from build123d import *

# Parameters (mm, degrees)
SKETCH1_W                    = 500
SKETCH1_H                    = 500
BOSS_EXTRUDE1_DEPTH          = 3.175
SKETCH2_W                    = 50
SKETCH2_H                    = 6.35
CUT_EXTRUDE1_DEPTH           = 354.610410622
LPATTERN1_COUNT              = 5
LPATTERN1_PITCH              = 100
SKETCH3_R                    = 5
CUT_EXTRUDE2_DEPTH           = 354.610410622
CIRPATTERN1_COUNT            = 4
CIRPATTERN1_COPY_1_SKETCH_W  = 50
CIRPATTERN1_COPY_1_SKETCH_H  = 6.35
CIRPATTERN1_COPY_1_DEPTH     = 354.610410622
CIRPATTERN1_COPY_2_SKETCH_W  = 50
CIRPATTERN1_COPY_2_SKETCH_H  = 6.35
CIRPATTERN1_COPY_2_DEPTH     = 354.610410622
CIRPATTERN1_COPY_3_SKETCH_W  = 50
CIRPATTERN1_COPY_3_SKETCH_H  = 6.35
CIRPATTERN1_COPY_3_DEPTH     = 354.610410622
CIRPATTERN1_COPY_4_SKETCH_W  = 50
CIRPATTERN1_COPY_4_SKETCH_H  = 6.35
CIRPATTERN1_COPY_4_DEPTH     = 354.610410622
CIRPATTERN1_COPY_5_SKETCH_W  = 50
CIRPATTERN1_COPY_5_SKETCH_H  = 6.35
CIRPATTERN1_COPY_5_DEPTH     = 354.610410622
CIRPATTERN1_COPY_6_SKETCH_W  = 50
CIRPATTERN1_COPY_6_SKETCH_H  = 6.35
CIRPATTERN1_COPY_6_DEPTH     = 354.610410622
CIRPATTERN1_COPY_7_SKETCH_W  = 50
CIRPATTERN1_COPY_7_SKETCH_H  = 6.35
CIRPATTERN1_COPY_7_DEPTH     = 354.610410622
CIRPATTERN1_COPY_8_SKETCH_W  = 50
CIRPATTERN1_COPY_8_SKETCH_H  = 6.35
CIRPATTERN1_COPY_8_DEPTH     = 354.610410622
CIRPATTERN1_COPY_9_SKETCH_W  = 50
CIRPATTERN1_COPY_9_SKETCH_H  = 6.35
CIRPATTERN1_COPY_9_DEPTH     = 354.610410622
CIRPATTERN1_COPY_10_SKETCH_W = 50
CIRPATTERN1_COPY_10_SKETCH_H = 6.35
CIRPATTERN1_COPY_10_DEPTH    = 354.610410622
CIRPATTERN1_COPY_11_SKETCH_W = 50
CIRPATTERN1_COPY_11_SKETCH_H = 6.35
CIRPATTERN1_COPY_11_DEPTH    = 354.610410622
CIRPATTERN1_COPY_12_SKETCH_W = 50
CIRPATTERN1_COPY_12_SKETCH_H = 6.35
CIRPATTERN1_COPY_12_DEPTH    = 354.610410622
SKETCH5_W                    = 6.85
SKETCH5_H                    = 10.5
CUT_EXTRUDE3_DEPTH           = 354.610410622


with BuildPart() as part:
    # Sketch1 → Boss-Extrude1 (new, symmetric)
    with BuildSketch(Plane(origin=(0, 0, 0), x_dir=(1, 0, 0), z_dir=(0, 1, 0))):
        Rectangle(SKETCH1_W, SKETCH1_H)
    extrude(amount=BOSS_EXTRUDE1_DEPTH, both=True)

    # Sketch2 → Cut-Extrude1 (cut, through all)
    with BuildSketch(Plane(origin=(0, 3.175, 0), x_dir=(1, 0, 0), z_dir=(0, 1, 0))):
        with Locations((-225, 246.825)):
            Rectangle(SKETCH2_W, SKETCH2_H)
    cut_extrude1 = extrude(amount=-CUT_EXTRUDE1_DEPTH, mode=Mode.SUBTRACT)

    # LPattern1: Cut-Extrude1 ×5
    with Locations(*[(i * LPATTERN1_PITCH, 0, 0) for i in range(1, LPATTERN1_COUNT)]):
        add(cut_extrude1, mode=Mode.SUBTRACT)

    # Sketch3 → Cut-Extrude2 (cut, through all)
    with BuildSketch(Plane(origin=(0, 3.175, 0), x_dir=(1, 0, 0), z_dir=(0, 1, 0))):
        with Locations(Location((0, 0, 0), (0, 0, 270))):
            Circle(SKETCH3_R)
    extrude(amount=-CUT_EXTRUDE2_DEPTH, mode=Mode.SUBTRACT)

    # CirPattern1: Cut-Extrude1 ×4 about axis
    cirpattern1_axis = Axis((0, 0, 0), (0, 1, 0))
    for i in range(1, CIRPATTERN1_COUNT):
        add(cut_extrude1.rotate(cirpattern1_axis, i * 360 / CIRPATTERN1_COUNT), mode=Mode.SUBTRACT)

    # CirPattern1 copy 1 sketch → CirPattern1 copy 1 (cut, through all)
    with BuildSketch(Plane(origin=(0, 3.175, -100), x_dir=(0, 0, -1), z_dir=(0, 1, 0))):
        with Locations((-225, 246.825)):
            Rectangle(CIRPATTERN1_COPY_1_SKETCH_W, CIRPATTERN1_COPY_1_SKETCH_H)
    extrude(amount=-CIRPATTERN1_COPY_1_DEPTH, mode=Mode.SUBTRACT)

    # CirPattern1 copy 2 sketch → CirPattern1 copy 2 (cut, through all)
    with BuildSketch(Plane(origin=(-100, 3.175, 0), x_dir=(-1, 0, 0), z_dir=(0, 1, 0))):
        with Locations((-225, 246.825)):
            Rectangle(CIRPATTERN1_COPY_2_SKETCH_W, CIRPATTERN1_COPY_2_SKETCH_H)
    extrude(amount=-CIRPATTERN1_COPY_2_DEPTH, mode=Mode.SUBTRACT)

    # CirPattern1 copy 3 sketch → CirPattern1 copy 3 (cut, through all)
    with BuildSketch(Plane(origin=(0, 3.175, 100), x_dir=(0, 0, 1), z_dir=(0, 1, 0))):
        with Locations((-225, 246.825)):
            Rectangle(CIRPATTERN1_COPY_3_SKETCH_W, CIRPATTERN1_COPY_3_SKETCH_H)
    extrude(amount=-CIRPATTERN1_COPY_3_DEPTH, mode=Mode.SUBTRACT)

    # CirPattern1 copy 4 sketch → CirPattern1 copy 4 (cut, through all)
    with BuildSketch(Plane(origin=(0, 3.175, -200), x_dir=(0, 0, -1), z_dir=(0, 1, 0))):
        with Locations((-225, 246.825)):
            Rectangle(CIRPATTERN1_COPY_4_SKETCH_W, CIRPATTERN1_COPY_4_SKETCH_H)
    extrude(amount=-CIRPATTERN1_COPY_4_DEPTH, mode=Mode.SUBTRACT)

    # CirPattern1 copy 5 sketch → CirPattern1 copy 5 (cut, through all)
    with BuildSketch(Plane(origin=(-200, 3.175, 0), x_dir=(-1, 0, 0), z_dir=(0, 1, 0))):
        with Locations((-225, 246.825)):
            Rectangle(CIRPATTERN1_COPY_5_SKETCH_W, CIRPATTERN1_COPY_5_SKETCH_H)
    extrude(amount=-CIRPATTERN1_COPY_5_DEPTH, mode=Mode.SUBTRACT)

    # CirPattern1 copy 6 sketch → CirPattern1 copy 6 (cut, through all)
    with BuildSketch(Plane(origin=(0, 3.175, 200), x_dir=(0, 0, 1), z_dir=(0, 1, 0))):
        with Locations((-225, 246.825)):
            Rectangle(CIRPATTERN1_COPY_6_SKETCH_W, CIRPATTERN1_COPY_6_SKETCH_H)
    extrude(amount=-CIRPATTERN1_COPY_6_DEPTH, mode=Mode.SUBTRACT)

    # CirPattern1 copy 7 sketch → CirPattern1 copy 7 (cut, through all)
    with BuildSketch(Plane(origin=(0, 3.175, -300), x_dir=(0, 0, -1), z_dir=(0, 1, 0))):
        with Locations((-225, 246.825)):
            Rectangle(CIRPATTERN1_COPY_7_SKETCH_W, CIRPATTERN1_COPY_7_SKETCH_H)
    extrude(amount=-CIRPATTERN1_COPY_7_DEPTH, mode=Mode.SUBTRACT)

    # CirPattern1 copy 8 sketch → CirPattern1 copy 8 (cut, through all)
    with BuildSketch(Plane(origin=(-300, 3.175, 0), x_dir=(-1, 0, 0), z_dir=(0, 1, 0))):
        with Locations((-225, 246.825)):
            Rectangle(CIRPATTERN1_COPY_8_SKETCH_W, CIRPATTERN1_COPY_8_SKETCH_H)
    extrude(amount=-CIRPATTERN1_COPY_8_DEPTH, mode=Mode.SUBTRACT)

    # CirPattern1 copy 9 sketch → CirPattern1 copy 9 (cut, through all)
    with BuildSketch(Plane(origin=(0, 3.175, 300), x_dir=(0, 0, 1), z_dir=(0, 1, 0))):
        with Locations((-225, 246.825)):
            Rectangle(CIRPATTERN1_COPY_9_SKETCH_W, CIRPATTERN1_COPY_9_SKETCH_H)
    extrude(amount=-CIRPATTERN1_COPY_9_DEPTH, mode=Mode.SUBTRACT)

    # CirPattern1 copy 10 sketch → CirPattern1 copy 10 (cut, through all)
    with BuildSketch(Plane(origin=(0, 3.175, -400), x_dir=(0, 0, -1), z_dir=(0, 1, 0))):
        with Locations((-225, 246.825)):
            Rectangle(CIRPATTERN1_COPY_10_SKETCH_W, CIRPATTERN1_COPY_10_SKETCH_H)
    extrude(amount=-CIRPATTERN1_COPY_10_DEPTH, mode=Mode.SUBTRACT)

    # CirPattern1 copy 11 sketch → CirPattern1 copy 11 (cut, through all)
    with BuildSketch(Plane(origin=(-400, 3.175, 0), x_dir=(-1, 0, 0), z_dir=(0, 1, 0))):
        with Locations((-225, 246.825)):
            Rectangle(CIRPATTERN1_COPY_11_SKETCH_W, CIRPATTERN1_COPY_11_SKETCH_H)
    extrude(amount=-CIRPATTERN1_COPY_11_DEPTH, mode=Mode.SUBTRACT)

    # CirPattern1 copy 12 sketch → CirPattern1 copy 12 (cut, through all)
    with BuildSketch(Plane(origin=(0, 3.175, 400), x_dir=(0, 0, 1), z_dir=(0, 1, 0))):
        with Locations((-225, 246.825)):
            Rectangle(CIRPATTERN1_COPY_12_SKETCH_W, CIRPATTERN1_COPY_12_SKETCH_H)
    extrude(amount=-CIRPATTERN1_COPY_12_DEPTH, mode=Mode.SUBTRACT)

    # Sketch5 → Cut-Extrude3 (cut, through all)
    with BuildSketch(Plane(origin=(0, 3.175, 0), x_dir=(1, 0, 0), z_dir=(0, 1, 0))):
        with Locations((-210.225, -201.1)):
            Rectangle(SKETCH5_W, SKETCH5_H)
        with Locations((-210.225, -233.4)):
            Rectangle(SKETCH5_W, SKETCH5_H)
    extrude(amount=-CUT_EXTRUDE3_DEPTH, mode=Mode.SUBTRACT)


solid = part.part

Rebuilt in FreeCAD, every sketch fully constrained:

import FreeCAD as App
import Part
import Sketcher
from FreeCAD import Vector
Q = App.Units.Quantity


def add_polygon(sketch, points):
    """Adds a closed chain of lines whose ends are joined by coincident constraints."""
    first, n = sketch.GeometryCount, len(points)
    for a, b in zip(points, points[1:] + points[:1]):
        sketch.addGeometry(Part.LineSegment(App.Vector(*a, 0), App.Vector(*b, 0)), False)
    for i in range(n):
        sketch.addConstraint(Sketcher.Constraint("Coincident", first + i, 2, first + (i + 1) % n, 1))

doc = App.newDocument("Part")
body = doc.addObject("PartDesign::Body", "Body")

# Sketch on XZ plane
sketch1 = body.newObject("Sketcher::SketchObject", "Sketch")
sketch1.AttachmentSupport = (doc.getObject("XZ_Plane"), [""])
sketch1.MapMode = "FlatFace"
add_polygon(sketch1, [(-250, -250), (-250, 250), (250, 250), (250, -250)])  # lines 0-3
sketch1.addConstraint([
    Sketcher.Constraint("Vertical", 0),
    Sketcher.Constraint("Horizontal", 1),
    Sketcher.Constraint("Vertical", 2),
    Sketcher.Constraint("Horizontal", 3),
    Sketcher.Constraint("Symmetric", 0, 2, 2, 2, -1, 1),
    Sketcher.Constraint("Equal", 3, 0),
    Sketcher.Constraint("DistanceX", 1, 1, 1, 2, Q("500 mm")),
])
pad1 = body.newObject("PartDesign::Pad", "Pad")
pad1.Profile = sketch1
pad1.Length = 6.35
pad1.Midplane = True

# Sketch on XZ plane
sketch2 = body.newObject("Sketcher::SketchObject", "Sketch001")
sketch2.AttachmentSupport = (doc.getObject("XZ_Plane"), [""])
sketch2.MapMode = "FlatFace"
sketch2.AttachmentOffset = App.Placement(Vector(0, 0, -3.175), App.Rotation())
add_polygon(sketch2, [(-250, -250), (-250, -244), (-200, -244), (-200, -250)])  # lines 0-3
sketch2.addConstraint([
    Sketcher.Constraint("Vertical", 0),
    Sketcher.Constraint("Horizontal", 1),
    Sketcher.Constraint("Vertical", 2),
    Sketcher.Constraint("Horizontal", 3),
    Sketcher.Constraint("DistanceX", 1, 1, 1, 2, Q("50 mm")),
    Sketcher.Constraint("DistanceX", 0, 2, -1, 1, Q("250 mm")),
    Sketcher.Constraint("DistanceY", 2, 2, -1, 1, Q("250 mm")),
    Sketcher.Constraint("DistanceY", 0, 1, 0, 2, Q("6.35 mm")),
])
pocket1 = body.newObject("PartDesign::Pocket", "Pocket")
pocket1.Profile = sketch2
pocket1.Type = "ThroughAll"
pocket1.Reversed = True
doc.recompute()

linearpattern = body.newObject("PartDesign::LinearPattern", "LinearPattern")
linearpattern.Originals = [pocket1]
linearpattern.Direction = (doc.getObject("X_Axis"), [""])
linearpattern.Mode = "offset"
linearpattern.Offset = 100
linearpattern.Occurrences = 5
body.Tip = linearpattern

# Sketch on XZ plane
sketch3 = body.newObject("Sketcher::SketchObject", "Sketch002")
sketch3.AttachmentSupport = (doc.getObject("XZ_Plane"), [""])
sketch3.MapMode = "FlatFace"
sketch3.AttachmentOffset = App.Placement(Vector(0, 0, -3.175), App.Rotation())
sketch3.addGeometry(Part.Circle(Vector(0, 0, 0), Vector(0, 0, 1), 5), False)
sketch3.addConstraint([
    Sketcher.Constraint("Coincident", 0, 3, -1, 1),
    Sketcher.Constraint("Diameter", 0, Q("10 mm")),
])
pocket2 = body.newObject("PartDesign::Pocket", "Pocket001")
pocket2.Profile = sketch3
pocket2.Type = "ThroughAll"
pocket2.Reversed = True
doc.recompute()

polarpattern = body.newObject("PartDesign::PolarPattern", "PolarPattern")
polarpattern.Originals = [pocket1]
polarpattern.Axis = (doc.getObject("Y_Axis"), [""])
polarpattern.Angle = 360
polarpattern.Occurrences = 4
body.Tip = polarpattern

# Sketch on XZ plane
sketch4 = body.newObject("Sketcher::SketchObject", "Sketch003")
sketch4.AttachmentSupport = (doc.getObject("XZ_Plane"), [""])
sketch4.MapMode = "FlatFace"
sketch4.AttachmentOffset = App.Placement(Vector(0, 0, -3.175), App.Rotation())
add_polygon(sketch4, [(-250, 150), (-244, 150), (-244, 100), (-250, 100)])  # lines 0-3
sketch4.addConstraint([
    Sketcher.Constraint("Horizontal", 0),
    Sketcher.Constraint("Vertical", 1),
    Sketcher.Constraint("Horizontal", 2),
    Sketcher.Constraint("Vertical", 3),
    Sketcher.Constraint("DistanceY", 1, 2, 1, 1, Q("50 mm")),
    Sketcher.Constraint("DistanceY", -1, 1, 0, 2, Q("150 mm")),
    Sketcher.Constraint("DistanceX", 2, 2, -1, 1, Q("250 mm")),
    Sketcher.Constraint("DistanceX", 0, 1, 0, 2, Q("6.35 mm")),
])
pocket3 = body.newObject("PartDesign::Pocket", "Pocket002")
pocket3.Profile = sketch4
pocket3.Type = "ThroughAll"
pocket3.Reversed = True

# Sketch on XZ plane
sketch5 = body.newObject("Sketcher::SketchObject", "Sketch004")
sketch5.AttachmentSupport = (doc.getObject("XZ_Plane"), [""])
sketch5.MapMode = "FlatFace"
sketch5.AttachmentOffset = App.Placement(Vector(0, 0, -3.175), App.Rotation())
add_polygon(sketch5, [(150, 250), (150, 244), (100, 244), (100, 250)])  # lines 0-3
sketch5.addConstraint([
    Sketcher.Constraint("Vertical", 0),
    Sketcher.Constraint("Horizontal", 1),
    Sketcher.Constraint("Vertical", 2),
    Sketcher.Constraint("Horizontal", 3),
    Sketcher.Constraint("DistanceX", 1, 2, 1, 1, Q("50 mm")),
    Sketcher.Constraint("DistanceX", -1, 1, 0, 2, Q("150 mm")),
    Sketcher.Constraint("DistanceY", -1, 1, 2, 2, Q("250 mm")),
    Sketcher.Constraint("DistanceY", 0, 2, 0, 1, Q("6.35 mm")),
])
pocket4 = body.newObject("PartDesign::Pocket", "Pocket003")
pocket4.Profile = sketch5
pocket4.Type = "ThroughAll"
pocket4.Reversed = True

# Sketch on XZ plane
sketch6 = body.newObject("Sketcher::SketchObject", "Sketch005")
sketch6.AttachmentSupport = (doc.getObject("XZ_Plane"), [""])
sketch6.MapMode = "FlatFace"
sketch6.AttachmentOffset = App.Placement(Vector(0, 0, -3.175), App.Rotation())
add_polygon(sketch6, [(250, -150), (244, -150), (244, -100), (250, -100)])  # lines 0-3
sketch6.addConstraint([
    Sketcher.Constraint("Horizontal", 0),
    Sketcher.Constraint("Vertical", 1),
    Sketcher.Constraint("Horizontal", 2),
    Sketcher.Constraint("Vertical", 3),
    Sketcher.Constraint("DistanceY", 1, 1, 1, 2, Q("50 mm")),
    Sketcher.Constraint("DistanceY", 0, 2, -1, 1, Q("150 mm")),
    Sketcher.Constraint("DistanceX", -1, 1, 2, 2, Q("250 mm")),
    Sketcher.Constraint("DistanceX", 0, 2, 0, 1, Q("6.35 mm")),
])
pocket5 = body.newObject("PartDesign::Pocket", "Pocket004")
pocket5.Profile = sketch6
pocket5.Type = "ThroughAll"
pocket5.Reversed = True

# Sketch on XZ plane
sketch7 = body.newObject("Sketcher::SketchObject", "Sketch006")
sketch7.AttachmentSupport = (doc.getObject("XZ_Plane"), [""])
sketch7.MapMode = "FlatFace"
sketch7.AttachmentOffset = App.Placement(Vector(0, 0, -3.175), App.Rotation())
add_polygon(sketch7, [(-250, 50), (-244, 50), (-244, 0), (-250, 0)])  # lines 0-3
sketch7.addConstraint([
    Sketcher.Constraint("Horizontal", 0),
    Sketcher.Constraint("Vertical", 1),
    Sketcher.Constraint("Horizontal", 2),
    Sketcher.Constraint("Vertical", 3),
    Sketcher.Constraint("PointOnObject", 1, 2, -1),
    Sketcher.Constraint("DistanceY", 1, 2, 1, 1, Q("50 mm")),
    Sketcher.Constraint("DistanceX", 2, 2, -1, 1, Q("250 mm")),
    Sketcher.Constraint("DistanceX", 0, 1, 0, 2, Q("6.35 mm")),
])
pocket6 = body.newObject("PartDesign::Pocket", "Pocket005")
pocket6.Profile = sketch7
pocket6.Type = "ThroughAll"
pocket6.Reversed = True

# Sketch on XZ plane
sketch8 = body.newObject("Sketcher::SketchObject", "Sketch007")
sketch8.AttachmentSupport = (doc.getObject("XZ_Plane"), [""])
sketch8.MapMode = "FlatFace"
sketch8.AttachmentOffset = App.Placement(Vector(0, 0, -3.175), App.Rotation())
add_polygon(sketch8, [(50, 250), (50, 244), (0, 244), (0, 250)])  # lines 0-3
sketch8.addConstraint([
    Sketcher.Constraint("Vertical", 0),
    Sketcher.Constraint("Horizontal", 1),
    Sketcher.Constraint("Vertical", 2),
    Sketcher.Constraint("Horizontal", 3),
    Sketcher.Constraint("PointOnObject", 1, 2, -2),
    Sketcher.Constraint("DistanceX", 1, 2, 1, 1, Q("50 mm")),
    Sketcher.Constraint("DistanceY", -1, 1, 2, 2, Q("250 mm")),
    Sketcher.Constraint("DistanceY", 0, 2, 0, 1, Q("6.35 mm")),
])
pocket7 = body.newObject("PartDesign::Pocket", "Pocket006")
pocket7.Profile = sketch8
pocket7.Type = "ThroughAll"
pocket7.Reversed = True

# Sketch on XZ plane
sketch9 = body.newObject("Sketcher::SketchObject", "Sketch008")
sketch9.AttachmentSupport = (doc.getObject("XZ_Plane"), [""])
sketch9.MapMode = "FlatFace"
sketch9.AttachmentOffset = App.Placement(Vector(0, 0, -3.175), App.Rotation())
add_polygon(sketch9, [(250, -50), (244, -50), (244, 0), (250, 0)])  # lines 0-3
sketch9.addConstraint([
    Sketcher.Constraint("Horizontal", 0),
    Sketcher.Constraint("Vertical", 1),
    Sketcher.Constraint("Horizontal", 2),
    Sketcher.Constraint("Vertical", 3),
    Sketcher.Constraint("PointOnObject", 1, 2, -1),
    Sketcher.Constraint("DistanceY", 1, 1, 1, 2, Q("50 mm")),
    Sketcher.Constraint("DistanceX", -1, 1, 2, 2, Q("250 mm")),
    Sketcher.Constraint("DistanceX", 0, 2, 0, 1, Q("6.35 mm")),
])
pocket8 = body.newObject("PartDesign::Pocket", "Pocket007")
pocket8.Profile = sketch9
pocket8.Type = "ThroughAll"
pocket8.Reversed = True

# Sketch on XZ plane
sketch10 = body.newObject("Sketcher::SketchObject", "Sketch009")
sketch10.AttachmentSupport = (doc.getObject("XZ_Plane"), [""])
sketch10.MapMode = "FlatFace"
sketch10.AttachmentOffset = App.Placement(Vector(0, 0, -3.175), App.Rotation())
add_polygon(sketch10, [(-250, -50), (-244, -50), (-244, -100), (-250, -100)])  # lines 0-3
sketch10.addConstraint([
    Sketcher.Constraint("Horizontal", 0),
    Sketcher.Constraint("Vertical", 1),
    Sketcher.Constraint("Horizontal", 2),
    Sketcher.Constraint("Vertical", 3),
    Sketcher.Constraint("DistanceY", 1, 2, 1, 1, Q("50 mm")),
    Sketcher.Constraint("DistanceY", 0, 2, -1, 1, Q("50 mm")),
    Sketcher.Constraint("DistanceX", 2, 2, -1, 1, Q("250 mm")),
    Sketcher.Constraint("DistanceX", 0, 1, 0, 2, Q("6.35 mm")),
])
pocket9 = body.newObject("PartDesign::Pocket", "Pocket008")
pocket9.Profile = sketch10
pocket9.Type = "ThroughAll"
pocket9.Reversed = True

# Sketch on XZ plane
sketch11 = body.newObject("Sketcher::SketchObject", "Sketch010")
sketch11.AttachmentSupport = (doc.getObject("XZ_Plane"), [""])
sketch11.MapMode = "FlatFace"
sketch11.AttachmentOffset = App.Placement(Vector(0, 0, -3.175), App.Rotation())
add_polygon(sketch11, [(-50, 250), (-50, 244), (-100, 244), (-100, 250)])  # lines 0-3
sketch11.addConstraint([
    Sketcher.Constraint("Vertical", 0),
    Sketcher.Constraint("Horizontal", 1),
    Sketcher.Constraint("Vertical", 2),
    Sketcher.Constraint("Horizontal", 3),
    Sketcher.Constraint("DistanceX", 1, 2, 1, 1, Q("50 mm")),
    Sketcher.Constraint("DistanceX", 0, 2, -1, 1, Q("50 mm")),
    Sketcher.Constraint("DistanceY", -1, 1, 2, 2, Q("250 mm")),
    Sketcher.Constraint("DistanceY", 0, 2, 0, 1, Q("6.35 mm")),
])
pocket10 = body.newObject("PartDesign::Pocket", "Pocket009")
pocket10.Profile = sketch11
pocket10.Type = "ThroughAll"
pocket10.Reversed = True

# Sketch on XZ plane
sketch12 = body.newObject("Sketcher::SketchObject", "Sketch011")
sketch12.AttachmentSupport = (doc.getObject("XZ_Plane"), [""])
sketch12.MapMode = "FlatFace"
sketch12.AttachmentOffset = App.Placement(Vector(0, 0, -3.175), App.Rotation())
add_polygon(sketch12, [(250, 50), (244, 50), (244, 100), (250, 100)])  # lines 0-3
sketch12.addConstraint([
    Sketcher.Constraint("Horizontal", 0),
    Sketcher.Constraint("Vertical", 1),
    Sketcher.Constraint("Horizontal", 2),
    Sketcher.Constraint("Vertical", 3),
    Sketcher.Constraint("DistanceY", 1, 1, 1, 2, Q("50 mm")),
    Sketcher.Constraint("DistanceY", -1, 1, 0, 2, Q("50 mm")),
    Sketcher.Constraint("DistanceX", -1, 1, 2, 2, Q("250 mm")),
    Sketcher.Constraint("DistanceX", 0, 2, 0, 1, Q("6.35 mm")),
])
pocket11 = body.newObject("PartDesign::Pocket", "Pocket010")
pocket11.Profile = sketch12
pocket11.Type = "ThroughAll"
pocket11.Reversed = True

# Sketch on XZ plane
sketch13 = body.newObject("Sketcher::SketchObject", "Sketch012")
sketch13.AttachmentSupport = (doc.getObject("XZ_Plane"), [""])
sketch13.MapMode = "FlatFace"
sketch13.AttachmentOffset = App.Placement(Vector(0, 0, -3.175), App.Rotation())
add_polygon(sketch13, [(-250, -150), (-244, -150), (-244, -200), (-250, -200)])  # lines 0-3
sketch13.addConstraint([
    Sketcher.Constraint("Horizontal", 0),
    Sketcher.Constraint("Vertical", 1),
    Sketcher.Constraint("Horizontal", 2),
    Sketcher.Constraint("Vertical", 3),
    Sketcher.Constraint("DistanceY", 1, 2, 1, 1, Q("50 mm")),
    Sketcher.Constraint("DistanceY", 0, 2, -1, 1, Q("150 mm")),
    Sketcher.Constraint("DistanceX", 2, 2, -1, 1, Q("250 mm")),
    Sketcher.Constraint("DistanceX", 0, 1, 0, 2, Q("6.35 mm")),
])
pocket12 = body.newObject("PartDesign::Pocket", "Pocket011")
pocket12.Profile = sketch13
pocket12.Type = "ThroughAll"
pocket12.Reversed = True

# Sketch on XZ plane
sketch14 = body.newObject("Sketcher::SketchObject", "Sketch013")
sketch14.AttachmentSupport = (doc.getObject("XZ_Plane"), [""])
sketch14.MapMode = "FlatFace"
sketch14.AttachmentOffset = App.Placement(Vector(0, 0, -3.175), App.Rotation())
add_polygon(sketch14, [(-150, 250), (-150, 244), (-200, 244), (-200, 250)])  # lines 0-3
sketch14.addConstraint([
    Sketcher.Constraint("Vertical", 0),
    Sketcher.Constraint("Horizontal", 1),
    Sketcher.Constraint("Vertical", 2),
    Sketcher.Constraint("Horizontal", 3),
    Sketcher.Constraint("DistanceX", 1, 2, 1, 1, Q("50 mm")),
    Sketcher.Constraint("DistanceX", 0, 2, -1, 1, Q("150 mm")),
    Sketcher.Constraint("DistanceY", -1, 1, 2, 2, Q("250 mm")),
    Sketcher.Constraint("DistanceY", 0, 2, 0, 1, Q("6.35 mm")),
])
pocket13 = body.newObject("PartDesign::Pocket", "Pocket012")
pocket13.Profile = sketch14
pocket13.Type = "ThroughAll"
pocket13.Reversed = True

# Sketch on XZ plane
sketch15 = body.newObject("Sketcher::SketchObject", "Sketch014")
sketch15.AttachmentSupport = (doc.getObject("XZ_Plane"), [""])
sketch15.MapMode = "FlatFace"
sketch15.AttachmentOffset = App.Placement(Vector(0, 0, -3.175), App.Rotation())
add_polygon(sketch15, [(250, 150), (244, 150), (244, 200), (250, 200)])  # lines 0-3
sketch15.addConstraint([
    Sketcher.Constraint("Horizontal", 0),
    Sketcher.Constraint("Vertical", 1),
    Sketcher.Constraint("Horizontal", 2),
    Sketcher.Constraint("Vertical", 3),
    Sketcher.Constraint("DistanceY", 1, 1, 1, 2, Q("50 mm")),
    Sketcher.Constraint("DistanceY", -1, 1, 0, 2, Q("150 mm")),
    Sketcher.Constraint("DistanceX", -1, 1, 2, 2, Q("250 mm")),
    Sketcher.Constraint("DistanceX", 0, 2, 0, 1, Q("6.35 mm")),
])
pocket14 = body.newObject("PartDesign::Pocket", "Pocket013")
pocket14.Profile = sketch15
pocket14.Type = "ThroughAll"
pocket14.Reversed = True

# Sketch on XZ plane
sketch16 = body.newObject("Sketcher::SketchObject", "Sketch015")
sketch16.AttachmentSupport = (doc.getObject("XZ_Plane"), [""])
sketch16.MapMode = "FlatFace"
sketch16.AttachmentOffset = App.Placement(Vector(0, 0, -3.175), App.Rotation())
add_polygon(sketch16, [(-214, 196), (-214, 206), (-207, 206), (-207, 196)])  # lines 0-3
add_polygon(sketch16, [(-214, 228), (-214, 239), (-207, 239), (-207, 228)])  # lines 4-7
sketch16.addConstraint([
    Sketcher.Constraint("Vertical", 0),
    Sketcher.Constraint("Horizontal", 1),
    Sketcher.Constraint("Vertical", 2),
    Sketcher.Constraint("Horizontal", 3),
    Sketcher.Constraint("Vertical", 4),
    Sketcher.Constraint("Horizontal", 5),
    Sketcher.Constraint("Vertical", 6),
    Sketcher.Constraint("Horizontal", 7),
    Sketcher.Constraint("Vertical", 3, 2, 4, 2),
    Sketcher.Constraint("Vertical", 2, 2, 5, 2),
    Sketcher.Constraint("Equal", 2, 4),
    Sketcher.Constraint("DistanceY", 0, 1, 0, 2, Q("10.5 mm")),
    Sketcher.Constraint("DistanceX", 1, 1, 1, 2, Q("6.85 mm")),
    Sketcher.Constraint("DistanceX", 1, 2, -1, 1, Q("206.8 mm")),
    Sketcher.Constraint("DistanceY", 0, 2, 4, 2, Q("32.3 mm")),
    Sketcher.Constraint("DistanceY", -1, 1, 0, 2, Q("206.35 mm")),
])
pocket15 = body.newObject("PartDesign::Pocket", "Pocket014")
pocket15.Profile = sketch16
pocket15.Type = "ThroughAll"
pocket15.Reversed = True

doc.recompute()
